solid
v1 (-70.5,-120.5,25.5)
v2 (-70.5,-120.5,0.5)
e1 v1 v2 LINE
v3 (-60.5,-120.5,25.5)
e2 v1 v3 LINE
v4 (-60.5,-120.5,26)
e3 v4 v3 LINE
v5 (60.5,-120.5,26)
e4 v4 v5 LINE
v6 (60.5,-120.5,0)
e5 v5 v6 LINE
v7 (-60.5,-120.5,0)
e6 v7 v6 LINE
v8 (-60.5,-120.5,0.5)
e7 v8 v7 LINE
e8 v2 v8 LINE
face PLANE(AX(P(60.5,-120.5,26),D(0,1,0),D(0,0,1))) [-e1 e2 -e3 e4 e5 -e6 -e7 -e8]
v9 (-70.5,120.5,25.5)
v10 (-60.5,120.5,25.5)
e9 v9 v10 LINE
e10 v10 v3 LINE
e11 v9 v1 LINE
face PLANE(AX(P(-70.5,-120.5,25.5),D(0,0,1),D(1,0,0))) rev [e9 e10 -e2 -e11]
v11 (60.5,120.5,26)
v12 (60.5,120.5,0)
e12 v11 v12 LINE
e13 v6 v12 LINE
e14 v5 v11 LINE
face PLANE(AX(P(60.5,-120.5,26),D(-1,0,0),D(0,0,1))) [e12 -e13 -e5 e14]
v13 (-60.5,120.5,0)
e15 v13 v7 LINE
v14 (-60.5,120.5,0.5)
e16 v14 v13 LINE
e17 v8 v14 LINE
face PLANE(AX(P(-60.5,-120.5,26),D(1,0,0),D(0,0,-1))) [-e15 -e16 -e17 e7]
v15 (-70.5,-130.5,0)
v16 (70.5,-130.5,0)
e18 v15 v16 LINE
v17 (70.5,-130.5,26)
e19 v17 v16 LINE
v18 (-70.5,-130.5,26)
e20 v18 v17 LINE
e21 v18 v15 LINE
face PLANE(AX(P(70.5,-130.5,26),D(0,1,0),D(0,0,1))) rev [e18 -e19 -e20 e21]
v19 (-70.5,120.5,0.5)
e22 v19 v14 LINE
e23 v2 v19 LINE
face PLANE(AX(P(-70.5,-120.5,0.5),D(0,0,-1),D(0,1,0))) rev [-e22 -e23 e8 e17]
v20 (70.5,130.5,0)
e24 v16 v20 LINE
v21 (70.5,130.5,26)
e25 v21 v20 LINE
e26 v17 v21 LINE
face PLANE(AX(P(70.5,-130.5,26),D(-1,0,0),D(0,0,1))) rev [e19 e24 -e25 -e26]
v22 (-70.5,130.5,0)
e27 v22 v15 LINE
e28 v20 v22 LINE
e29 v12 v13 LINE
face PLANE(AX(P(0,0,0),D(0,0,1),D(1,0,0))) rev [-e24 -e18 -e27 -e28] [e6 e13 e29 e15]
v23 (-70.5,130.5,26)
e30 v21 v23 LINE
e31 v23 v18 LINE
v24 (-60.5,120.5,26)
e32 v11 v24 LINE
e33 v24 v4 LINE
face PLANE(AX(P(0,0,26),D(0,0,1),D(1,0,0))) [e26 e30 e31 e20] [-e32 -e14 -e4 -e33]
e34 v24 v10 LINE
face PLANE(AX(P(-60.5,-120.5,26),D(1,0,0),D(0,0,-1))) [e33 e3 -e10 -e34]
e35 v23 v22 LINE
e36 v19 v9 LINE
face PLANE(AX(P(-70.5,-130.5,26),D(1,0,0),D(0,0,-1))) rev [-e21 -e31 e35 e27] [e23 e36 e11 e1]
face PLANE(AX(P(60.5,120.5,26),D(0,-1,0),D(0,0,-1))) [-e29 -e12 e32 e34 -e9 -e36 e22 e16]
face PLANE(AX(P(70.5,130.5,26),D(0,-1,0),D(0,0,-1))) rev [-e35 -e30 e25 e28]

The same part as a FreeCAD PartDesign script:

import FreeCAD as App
import Part
import Sketcher
Q = App.Units.Quantity

doc = App.newDocument("Part")
body = doc.addObject("PartDesign::Body", "Body")

sketch1 = body.newObject("Sketcher::SketchObject", "Sketch")
sketch1.AttachmentSupport = (doc.getObject("XY_Plane"), [""])
sketch1.MapMode = "FlatFace"
sketch1.addGeometry([
    Part.LineSegment(App.Vector(-70.5, -130.5, 0), App.Vector(70.5, -130.5, 0)),
    Part.LineSegment(App.Vector(70.5, -130.5, 0), App.Vector(70.5, 130.5, 0)),
    Part.LineSegment(App.Vector(70.5, 130.5, 0), App.Vector(-70.5, 130.5, 0)),
    Part.LineSegment(App.Vector(-70.5, 130.5, 0), App.Vector(-70.5, -130.5, 0)),
    Part.LineSegment(App.Vector(60.5, 120.5, 0), App.Vector(60.5, -120.5, 0)),
    Part.LineSegment(App.Vector(60.5, -120.5, 0), App.Vector(-60.5, -120.5, 0)),
    Part.LineSegment(App.Vector(-60.5, -120.5, 0), App.Vector(-60.5, 120.5, 0)),
    Part.LineSegment(App.Vector(-60.5, 120.5, 0), App.Vector(60.5, 120.5, 0)),
], False)
sketch1.addConstraint([
    Sketcher.Constraint("Coincident", 0, 2, 1, 1),
    Sketcher.Constraint("Coincident", 1, 2, 2, 1),
    Sketcher.Constraint("Coincident", 2, 2, 3, 1),
    Sketcher.Constraint("Coincident", 3, 2, 0, 1),
    Sketcher.Constraint("Coincident", 4, 2, 5, 1),
    Sketcher.Constraint("Coincident", 5, 2, 6, 1),
    Sketcher.Constraint("Coincident", 6, 2, 7, 1),
    Sketcher.Constraint("Coincident", 7, 2, 4, 1),
    Sketcher.Constraint("Horizontal", 0),
    Sketcher.Constraint("Vertical", 1),
    Sketcher.Constraint("Horizontal", 2),
    Sketcher.Constraint("Vertical", 3),
    Sketcher.Constraint("Vertical", 4),
    Sketcher.Constraint("Horizontal", 5),
    Sketcher.Constraint("Vertical", 6),
    Sketcher.Constraint("Horizontal", 7),
    Sketcher.Constraint("Symmetric", 0, 2, 2, 2, -1, 1),
    Sketcher.Constraint("Symmetric", 4, 2, 6, 2, -1, 1),
    Sketcher.Constraint("DistanceX", 0, 1, 0, 2, Q("141 mm")),
    Sketcher.Constraint("DistanceX", 5, 2, 5, 1, Q("121 mm")),
    Sketcher.Constraint("DistanceY", 1, 1, 1, 2, Q("261 mm")),
    Sketcher.Constraint("DistanceY", 4, 2, 4, 1, Q("241 mm")),
])
pad1 = body.newObject("PartDesign::Pad", "Pad")
pad1.Profile = sketch1
pad1.Length = 26

sketch2 = body.newObject("Sketcher::SketchObject", "Sketch001")
sketch2.AttachmentSupport = (doc.getObject("YZ_Plane"), [""])
sketch2.MapMode = "FlatFace"
sketch2.AttachmentOffset = App.Placement(App.Vector(0, 0, -60.5), App.Rotation())
sketch2.addGeometry([
    Part.LineSegment(App.Vector(-120.5, 25.5, 0), App.Vector(-120.5, 0.5, 0)),
    Part.LineSegment(App.Vector(-120.5, 0.5, 0), App.Vector(120.5, 0.5, 0)),
    Part.LineSegment(App.Vector(120.5, 0.5, 0), App.Vector(120.5, 25.5, 0)),
    Part.LineSegment(App.Vector(120.5, 25.5, 0), App.Vector(-120.5, 25.5, 0)),
], False)
sketch2.addConstraint([
    Sketcher.Constraint("Coincident", 0, 2, 1, 1),
    Sketcher.Constraint("Coincident", 1, 2, 2, 1),
    Sketcher.Constraint("Coincident", 2, 2, 3, 1),
    Sketcher.Constraint("Coincident", 3, 2, 0, 1),
    Sketcher.Constraint("Vertical", 0),
    Sketcher.Constraint("Horizontal", 1),
    Sketcher.Constraint("Vertical", 2),
    Sketcher.Constraint("Horizontal", 3),
    Sketcher.Constraint("DistanceX", 1, 1, 1, 2, Q("241 mm")),
    Sketcher.Constraint("DistanceY", 0, 2, 0, 1, Q("25 mm")),
    Sketcher.Constraint("DistanceX", 0, 2, -1, 1, Q("120.5 mm")),
    Sketcher.Constraint("DistanceY", -1, 1, 0, 2, Q("0.5 mm")),
])
pocket1 = body.newObject("PartDesign::Pocket", "Pocket")
pocket1.Profile = sketch2
pocket1.Type = "ThroughAll"

doc.recompute()
